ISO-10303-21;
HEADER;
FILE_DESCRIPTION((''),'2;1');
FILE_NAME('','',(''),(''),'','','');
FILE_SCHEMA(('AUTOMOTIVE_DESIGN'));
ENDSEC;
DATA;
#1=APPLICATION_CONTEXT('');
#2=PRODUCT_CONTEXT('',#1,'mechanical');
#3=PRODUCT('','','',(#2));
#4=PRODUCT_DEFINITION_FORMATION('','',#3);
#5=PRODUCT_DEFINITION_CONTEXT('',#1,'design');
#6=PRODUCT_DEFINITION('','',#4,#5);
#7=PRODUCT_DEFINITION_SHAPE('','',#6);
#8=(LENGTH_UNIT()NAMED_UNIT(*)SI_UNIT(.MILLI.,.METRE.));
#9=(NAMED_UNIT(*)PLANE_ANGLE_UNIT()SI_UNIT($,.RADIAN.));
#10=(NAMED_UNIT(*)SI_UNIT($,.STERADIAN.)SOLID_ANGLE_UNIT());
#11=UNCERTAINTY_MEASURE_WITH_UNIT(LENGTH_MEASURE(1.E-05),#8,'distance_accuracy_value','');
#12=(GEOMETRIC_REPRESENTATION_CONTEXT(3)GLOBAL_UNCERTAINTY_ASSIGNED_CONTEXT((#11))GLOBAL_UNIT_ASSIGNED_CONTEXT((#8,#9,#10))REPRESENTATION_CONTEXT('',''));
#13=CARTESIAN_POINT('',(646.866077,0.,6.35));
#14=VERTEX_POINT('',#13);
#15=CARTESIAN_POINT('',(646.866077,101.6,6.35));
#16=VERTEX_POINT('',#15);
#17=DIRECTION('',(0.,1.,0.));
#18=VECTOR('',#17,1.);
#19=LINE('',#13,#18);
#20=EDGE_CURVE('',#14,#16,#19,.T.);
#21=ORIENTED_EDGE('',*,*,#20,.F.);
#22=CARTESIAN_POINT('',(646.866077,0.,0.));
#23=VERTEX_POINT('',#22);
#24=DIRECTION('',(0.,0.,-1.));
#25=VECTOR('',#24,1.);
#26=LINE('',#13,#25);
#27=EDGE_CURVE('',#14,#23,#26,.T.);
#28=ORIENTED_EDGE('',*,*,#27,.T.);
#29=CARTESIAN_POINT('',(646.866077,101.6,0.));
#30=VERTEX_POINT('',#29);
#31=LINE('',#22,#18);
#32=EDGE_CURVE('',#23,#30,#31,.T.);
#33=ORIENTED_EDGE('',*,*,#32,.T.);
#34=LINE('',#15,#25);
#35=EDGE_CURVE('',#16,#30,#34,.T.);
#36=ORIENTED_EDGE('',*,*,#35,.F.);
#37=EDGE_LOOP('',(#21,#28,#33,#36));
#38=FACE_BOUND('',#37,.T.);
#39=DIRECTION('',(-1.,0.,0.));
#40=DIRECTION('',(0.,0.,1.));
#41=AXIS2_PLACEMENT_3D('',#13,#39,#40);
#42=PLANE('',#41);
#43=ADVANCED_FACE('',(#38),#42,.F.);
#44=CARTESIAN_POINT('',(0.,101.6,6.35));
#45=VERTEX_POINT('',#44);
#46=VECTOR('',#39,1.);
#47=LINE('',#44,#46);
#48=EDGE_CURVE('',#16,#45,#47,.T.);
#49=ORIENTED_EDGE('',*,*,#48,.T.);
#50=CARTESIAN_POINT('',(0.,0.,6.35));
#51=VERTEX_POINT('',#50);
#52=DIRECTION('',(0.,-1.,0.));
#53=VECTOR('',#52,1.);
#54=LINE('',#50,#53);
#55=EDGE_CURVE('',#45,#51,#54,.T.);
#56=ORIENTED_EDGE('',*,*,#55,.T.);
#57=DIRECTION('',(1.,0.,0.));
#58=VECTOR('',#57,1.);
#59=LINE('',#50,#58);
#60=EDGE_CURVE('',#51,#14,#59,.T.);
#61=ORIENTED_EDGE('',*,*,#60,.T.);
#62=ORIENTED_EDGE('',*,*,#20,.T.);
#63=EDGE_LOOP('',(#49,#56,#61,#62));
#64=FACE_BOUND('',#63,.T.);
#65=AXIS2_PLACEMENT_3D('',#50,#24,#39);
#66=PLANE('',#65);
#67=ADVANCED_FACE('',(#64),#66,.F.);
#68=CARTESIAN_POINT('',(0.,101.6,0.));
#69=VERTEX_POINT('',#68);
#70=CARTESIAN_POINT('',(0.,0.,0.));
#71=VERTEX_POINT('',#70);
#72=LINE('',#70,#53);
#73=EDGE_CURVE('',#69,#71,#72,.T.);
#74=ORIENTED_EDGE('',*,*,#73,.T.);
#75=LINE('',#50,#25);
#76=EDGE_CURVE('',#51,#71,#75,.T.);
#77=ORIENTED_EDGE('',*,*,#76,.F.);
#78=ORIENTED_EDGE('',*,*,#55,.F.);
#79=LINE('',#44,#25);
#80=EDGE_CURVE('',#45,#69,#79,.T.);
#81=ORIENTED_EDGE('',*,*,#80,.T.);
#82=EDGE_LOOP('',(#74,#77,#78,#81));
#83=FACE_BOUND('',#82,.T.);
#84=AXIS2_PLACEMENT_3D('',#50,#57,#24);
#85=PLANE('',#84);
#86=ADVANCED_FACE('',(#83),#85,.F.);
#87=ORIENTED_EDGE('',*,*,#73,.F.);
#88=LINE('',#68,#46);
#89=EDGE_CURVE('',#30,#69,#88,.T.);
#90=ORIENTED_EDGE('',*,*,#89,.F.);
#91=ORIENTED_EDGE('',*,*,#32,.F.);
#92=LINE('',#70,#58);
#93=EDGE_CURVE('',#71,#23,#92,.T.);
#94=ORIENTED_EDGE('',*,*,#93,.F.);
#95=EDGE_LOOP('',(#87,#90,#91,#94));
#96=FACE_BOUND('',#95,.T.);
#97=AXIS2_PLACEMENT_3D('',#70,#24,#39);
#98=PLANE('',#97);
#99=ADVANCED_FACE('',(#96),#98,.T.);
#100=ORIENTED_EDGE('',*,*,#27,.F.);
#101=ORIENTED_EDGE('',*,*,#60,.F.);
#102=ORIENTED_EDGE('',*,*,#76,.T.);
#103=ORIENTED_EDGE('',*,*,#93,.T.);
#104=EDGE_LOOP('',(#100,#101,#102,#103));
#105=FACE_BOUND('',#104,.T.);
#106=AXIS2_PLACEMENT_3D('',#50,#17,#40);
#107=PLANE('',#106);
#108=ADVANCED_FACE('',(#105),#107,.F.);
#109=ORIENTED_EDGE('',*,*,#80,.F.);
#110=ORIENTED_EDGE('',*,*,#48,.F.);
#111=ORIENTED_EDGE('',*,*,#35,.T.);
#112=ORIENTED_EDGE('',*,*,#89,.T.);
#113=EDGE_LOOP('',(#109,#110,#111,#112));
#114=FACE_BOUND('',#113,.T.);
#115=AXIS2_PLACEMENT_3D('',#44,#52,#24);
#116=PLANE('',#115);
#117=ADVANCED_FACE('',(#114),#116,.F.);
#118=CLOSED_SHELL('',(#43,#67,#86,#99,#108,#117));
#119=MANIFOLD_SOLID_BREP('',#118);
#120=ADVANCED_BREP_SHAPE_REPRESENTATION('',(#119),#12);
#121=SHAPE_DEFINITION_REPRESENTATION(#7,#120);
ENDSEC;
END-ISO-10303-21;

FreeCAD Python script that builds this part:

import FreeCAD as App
import Part
import Sketcher
Q = App.Units.Quantity

doc = App.newDocument("Part")
params = doc.addObject("Spreadsheet::Sheet", "Params")
for row, (alias, value) in enumerate([
    ("sketch1_height", "4 in"),
    ("pad1_length", "0.25 in"),
], start=1):
    params.set(f"A{row}", alias)
    params.set(f"B{row}", "=" + value)
    params.setAlias(f"B{row}", alias)

body = doc.addObject("PartDesign::Body", "Body")

# Sketch on XY plane
sketch1 = body.newObject("Sketcher::SketchObject", "Sketch")
sketch1.AttachmentSupport = (doc.getObject("XY_Plane"), [""])
sketch1.MapMode = "FlatFace"
sketch1.addGeometry(Part.LineSegment(App.Vector(0, 101.6, 0), App.Vector(0, 0, 0)), False)
sketch1.addGeometry(Part.LineSegment(App.Vector(0, 0, 0), App.Vector(646.866077, 0, 0)), False)
sketch1.addGeometry(Part.LineSegment(App.Vector(646.866077, 0, 0), App.Vector(646.866077, 101.6, 0)), False)
sketch1.addGeometry(Part.LineSegment(App.Vector(646.866077, 101.6, 0), App.Vector(0, 101.6, 0)), False)
sketch1.addConstraint(Sketcher.Constraint("Coincident", 0, 2, 1, 1))
sketch1.addConstraint(Sketcher.Constraint("Coincident", 1, 2, 2, 1))
sketch1.addConstraint(Sketcher.Constraint("Coincident", 2, 2, 3, 1))
sketch1.addConstraint(Sketcher.Constraint("Coincident", 3, 2, 0, 1))
sketch1.addConstraint(Sketcher.Constraint("Vertical", 0))
sketch1.addConstraint(Sketcher.Constraint("Horizontal", 1))
sketch1.addConstraint(Sketcher.Constraint("Vertical", 2))
sketch1.addConstraint(Sketcher.Constraint("Horizontal", 3))
sketch1.addConstraint(Sketcher.Constraint("Coincident", 0, 2, -1, 1))
sketch1.addConstraint(Sketcher.Constraint("DistanceY", 0, 2, 0, 1, Q("4 in")))
sketch1.addConstraint(Sketcher.Constraint("DistanceX", 1, 1, 1, 2, 646.866077))
sketch1.setExpression("Constraints[9]", "Params.sketch1_height")
pad1 = body.newObject("PartDesign::Pad", "Pad")
pad1.Profile = sketch1
pad1.setExpression("Length", "Params.pad1_length")

doc.recompute()
